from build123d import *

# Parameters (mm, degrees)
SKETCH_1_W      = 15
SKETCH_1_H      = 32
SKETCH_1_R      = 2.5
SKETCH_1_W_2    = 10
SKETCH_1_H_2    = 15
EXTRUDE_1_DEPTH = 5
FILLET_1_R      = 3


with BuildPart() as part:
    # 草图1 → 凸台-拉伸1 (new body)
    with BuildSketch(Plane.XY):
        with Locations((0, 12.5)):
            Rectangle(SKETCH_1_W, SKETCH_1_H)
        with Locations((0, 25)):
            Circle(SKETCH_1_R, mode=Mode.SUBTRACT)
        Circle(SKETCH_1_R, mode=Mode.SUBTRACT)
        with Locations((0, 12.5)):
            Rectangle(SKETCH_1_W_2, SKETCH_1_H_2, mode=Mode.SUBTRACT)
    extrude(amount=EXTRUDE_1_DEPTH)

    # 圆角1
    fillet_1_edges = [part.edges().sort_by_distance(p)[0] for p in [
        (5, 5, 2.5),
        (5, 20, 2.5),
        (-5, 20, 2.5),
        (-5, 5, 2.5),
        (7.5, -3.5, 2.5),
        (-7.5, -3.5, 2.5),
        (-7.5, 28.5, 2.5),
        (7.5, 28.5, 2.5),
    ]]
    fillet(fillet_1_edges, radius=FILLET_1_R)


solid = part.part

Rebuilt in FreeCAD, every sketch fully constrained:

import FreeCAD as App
import Part
import Sketcher
from FreeCAD import Vector
Q = App.Units.Quantity


def edges_at(feature, points):
    """Names of the edges that pass closest to the given points."""
    edges = feature.Shape.Edges
    near = lambda p: min(range(len(edges)), key=lambda i: edges[i].distToShape(Part.Vertex(*p))[0])
    return sorted({f"Edge{near(p) + 1}" for p in points})


def add_polygon(sketch, points):
    """Adds a closed chain of lines whose ends are joined by coincident constraints."""
    first, n = sketch.GeometryCount, len(points)
    for a, b in zip(points, points[1:] + points[:1]):
        sketch.addGeometry(Part.LineSegment(App.Vector(*a, 0), App.Vector(*b, 0)), False)
    for i in range(n):
        sketch.addConstraint(Sketcher.Constraint("Coincident", first + i, 2, first + (i + 1) % n, 1))

doc = App.newDocument("Part")
body = doc.addObject("PartDesign::Body", "Body")

# Sketch on XY plane
sketch1 = doc.addObject("Sketcher::SketchObject", "Sketch")
body.addObject(sketch1)
sketch1.AttachmentSupport = (doc.XY_Plane, [""])
sketch1.MapMode = "FlatFace"
add_polygon(sketch1, [(-7.5, 28.5), (-7.5, -3.5), (7.5, -3.5), (7.5, 28.5)])  # lines 0-3
sketch1.addGeometry(Part.Circle(Vector(0, 0, 0), Vector(0, 0, 1), 2.5), False)  # 4
add_polygon(sketch1, [(5, 5), (-5, 5), (-5, 20), (5, 20)])  # lines 5-8
sketch1.addGeometry(Part.Circle(Vector(0, 25, 0), Vector(0, 0, 1), 2.5), False)  # 9
sketch1.addConstraint(Sketcher.Constraint("Vertical", 0))
sketch1.addConstraint(Sketcher.Constraint("Horizontal", 1))
sketch1.addConstraint(Sketcher.Constraint("Vertical", 2))
sketch1.addConstraint(Sketcher.Constraint("Horizontal", 3))
sketch1.addConstraint(Sketcher.Constraint("Horizontal", 5))
sketch1.addConstraint(Sketcher.Constraint("Vertical", 6))
sketch1.addConstraint(Sketcher.Constraint("Horizontal", 7))
sketch1.addConstraint(Sketcher.Constraint("Vertical", 8))
sketch1.addConstraint(Sketcher.Constraint("Coincident", 4, 3, -1, 1))
sketch1.addConstraint(Sketcher.Constraint("Equal", 4, 9))
sketch1.addConstraint(Sketcher.Constraint("PointOnObject", 9, 3, -2))
sketch1.addConstraint(Sketcher.Constraint("Equal", 3, 6))
sketch1.addConstraint(Sketcher.Constraint("Diameter", 4, Q("5 mm")))
sketch1.addConstraint(Sketcher.Constraint("DistanceX", 1, 1, 1, 2, Q("15 mm")))
sketch1.addConstraint(Sketcher.Constraint("DistanceX", 5, 2, 5, 1, Q("10 mm")))
sketch1.addConstraint(Sketcher.Constraint("DistanceY", 0, 2, 0, 1, Q("32 mm")))
sketch1.addConstraint(Sketcher.Constraint("DistanceY", -1, 1, 9, 3, Q("25 mm")))
sketch1.addConstraint(Sketcher.Constraint("DistanceX", 5, 2, -1, 1, Q("5 mm")))
sketch1.addConstraint(Sketcher.Constraint("DistanceY", -1, 1, 5, 2, Q("5 mm")))
sketch1.addConstraint(Sketcher.Constraint("DistanceX", 0, 2, -1, 1, Q("7.5 mm")))
sketch1.addConstraint(Sketcher.Constraint("DistanceY", 0, 2, -1, 1, Q("3.5 mm")))
pad1 = doc.addObject("PartDesign::Pad", "Pad")
body.addObject(pad1)
pad1.Profile = sketch1
pad1.Length = 5
doc.recompute()

fillet = doc.addObject("PartDesign::Fillet", "Fillet")
body.addObject(fillet)
fillet.Base = (pad1, edges_at(pad1, [
    (5, 5, 2.5),
    (5, 20, 2.5),
    (-5, 20, 2.5),
    (-5, 5, 2.5),
    (7.5, -3.5, 2.5),
    (-7.5, -3.5, 2.5),
    (-7.5, 28.5, 2.5),
    (7.5, 28.5, 2.5),
]))
fillet.Radius = 3

doc.recompute()
